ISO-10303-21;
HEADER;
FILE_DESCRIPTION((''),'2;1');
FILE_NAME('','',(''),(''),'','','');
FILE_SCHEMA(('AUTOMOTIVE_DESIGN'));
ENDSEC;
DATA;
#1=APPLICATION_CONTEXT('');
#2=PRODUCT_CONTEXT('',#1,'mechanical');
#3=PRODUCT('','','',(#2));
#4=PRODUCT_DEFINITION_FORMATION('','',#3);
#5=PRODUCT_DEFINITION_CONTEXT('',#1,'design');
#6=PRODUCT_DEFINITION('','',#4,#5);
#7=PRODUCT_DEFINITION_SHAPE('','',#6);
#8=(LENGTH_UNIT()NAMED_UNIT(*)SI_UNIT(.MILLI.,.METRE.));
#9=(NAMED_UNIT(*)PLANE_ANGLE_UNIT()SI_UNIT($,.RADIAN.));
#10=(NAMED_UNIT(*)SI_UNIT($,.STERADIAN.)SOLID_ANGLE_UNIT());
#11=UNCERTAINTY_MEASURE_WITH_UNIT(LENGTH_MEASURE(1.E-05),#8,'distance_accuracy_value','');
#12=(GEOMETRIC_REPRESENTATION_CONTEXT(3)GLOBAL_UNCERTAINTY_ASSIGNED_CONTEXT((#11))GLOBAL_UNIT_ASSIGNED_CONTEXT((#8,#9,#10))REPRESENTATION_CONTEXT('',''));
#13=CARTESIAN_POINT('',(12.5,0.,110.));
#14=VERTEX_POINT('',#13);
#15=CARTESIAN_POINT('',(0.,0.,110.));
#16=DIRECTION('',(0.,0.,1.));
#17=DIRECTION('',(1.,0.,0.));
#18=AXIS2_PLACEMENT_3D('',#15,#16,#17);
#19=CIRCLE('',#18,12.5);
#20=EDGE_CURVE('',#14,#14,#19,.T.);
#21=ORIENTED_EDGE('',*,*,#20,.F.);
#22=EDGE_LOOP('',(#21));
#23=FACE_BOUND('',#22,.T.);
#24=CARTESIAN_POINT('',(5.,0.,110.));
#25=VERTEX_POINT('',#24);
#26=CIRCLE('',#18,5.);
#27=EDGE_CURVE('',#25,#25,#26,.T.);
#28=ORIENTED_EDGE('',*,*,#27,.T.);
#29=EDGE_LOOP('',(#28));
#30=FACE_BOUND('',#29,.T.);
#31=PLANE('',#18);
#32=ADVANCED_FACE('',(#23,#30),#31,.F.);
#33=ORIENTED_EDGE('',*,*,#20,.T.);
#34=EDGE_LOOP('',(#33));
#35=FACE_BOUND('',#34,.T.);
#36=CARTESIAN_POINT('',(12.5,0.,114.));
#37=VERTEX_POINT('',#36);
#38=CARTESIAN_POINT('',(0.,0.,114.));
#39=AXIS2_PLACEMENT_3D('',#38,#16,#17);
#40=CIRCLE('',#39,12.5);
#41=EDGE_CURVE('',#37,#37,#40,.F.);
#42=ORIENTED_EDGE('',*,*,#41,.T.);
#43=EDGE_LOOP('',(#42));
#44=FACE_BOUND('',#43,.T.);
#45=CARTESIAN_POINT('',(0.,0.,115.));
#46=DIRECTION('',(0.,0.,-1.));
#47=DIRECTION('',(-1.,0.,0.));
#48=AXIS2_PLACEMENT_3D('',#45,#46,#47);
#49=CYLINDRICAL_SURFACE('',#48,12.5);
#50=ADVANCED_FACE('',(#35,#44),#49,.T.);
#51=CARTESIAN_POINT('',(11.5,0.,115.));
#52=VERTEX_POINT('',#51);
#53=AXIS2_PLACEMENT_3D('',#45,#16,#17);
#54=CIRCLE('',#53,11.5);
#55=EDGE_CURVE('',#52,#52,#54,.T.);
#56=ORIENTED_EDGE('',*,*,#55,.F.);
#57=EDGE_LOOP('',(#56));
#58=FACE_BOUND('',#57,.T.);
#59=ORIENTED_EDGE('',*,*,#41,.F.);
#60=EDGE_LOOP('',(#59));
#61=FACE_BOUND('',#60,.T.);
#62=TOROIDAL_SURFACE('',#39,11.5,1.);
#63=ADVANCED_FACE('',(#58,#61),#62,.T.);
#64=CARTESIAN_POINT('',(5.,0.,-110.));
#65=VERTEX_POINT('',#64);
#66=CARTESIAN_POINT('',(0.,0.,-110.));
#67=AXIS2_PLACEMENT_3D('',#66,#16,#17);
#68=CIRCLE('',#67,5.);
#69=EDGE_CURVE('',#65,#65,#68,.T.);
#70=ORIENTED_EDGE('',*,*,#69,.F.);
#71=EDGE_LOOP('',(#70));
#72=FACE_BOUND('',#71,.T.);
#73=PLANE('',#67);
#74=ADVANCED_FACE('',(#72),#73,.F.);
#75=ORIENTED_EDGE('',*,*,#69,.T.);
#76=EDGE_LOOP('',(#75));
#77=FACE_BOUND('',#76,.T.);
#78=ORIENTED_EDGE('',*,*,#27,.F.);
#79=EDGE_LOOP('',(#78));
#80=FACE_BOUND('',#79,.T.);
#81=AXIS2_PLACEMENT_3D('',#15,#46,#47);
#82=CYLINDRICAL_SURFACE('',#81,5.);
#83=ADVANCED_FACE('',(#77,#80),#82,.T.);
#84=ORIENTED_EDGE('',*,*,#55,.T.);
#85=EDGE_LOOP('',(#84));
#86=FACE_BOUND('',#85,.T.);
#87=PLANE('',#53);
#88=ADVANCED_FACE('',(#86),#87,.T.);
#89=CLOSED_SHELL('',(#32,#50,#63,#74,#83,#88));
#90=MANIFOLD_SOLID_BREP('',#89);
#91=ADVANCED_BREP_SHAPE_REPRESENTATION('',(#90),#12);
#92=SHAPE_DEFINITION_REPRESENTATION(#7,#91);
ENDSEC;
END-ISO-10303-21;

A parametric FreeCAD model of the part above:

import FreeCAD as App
import Part
import Sketcher
from FreeCAD import Vector


def edges_at(feature, points):
    """Names of the edges that pass closest to the given points."""
    edges = feature.Shape.Edges
    near = lambda p: min(range(len(edges)), key=lambda i: edges[i].distToShape(Part.Vertex(*p))[0])
    return sorted({f"Edge{near(p) + 1}" for p in points})

doc = App.newDocument("Part")
body = doc.addObject("PartDesign::Body", "Body")

sketch1 = doc.addObject("Sketcher::SketchObject", "Sketch")
body.addObject(sketch1)
sketch1.AttachmentSupport = (doc.XY_Plane, [""])
sketch1.MapMode = "FlatFace"
sketch1.addGeometry(Part.Circle(Vector(0, 0, 0), Vector(0, 0, 1), 5), False)
sketch1.addConstraint([
    Sketcher.Constraint("Coincident", 0, 3, -1, 1),
    Sketcher.Constraint("Diameter", 0, 10.0),
])
pad1 = doc.addObject("PartDesign::Pad", "Pad")
body.addObject(pad1)
pad1.Profile = sketch1
pad1.Length = 220
pad1.Midplane = True

sketch2 = doc.addObject("Sketcher::SketchObject", "Sketch001")
body.addObject(sketch2)
sketch2.AttachmentSupport = (doc.XY_Plane, [""])
sketch2.MapMode = "FlatFace"
sketch2.AttachmentOffset = App.Placement(Vector(0, 0, 110), App.Rotation())
sketch2.addGeometry(Part.Circle(Vector(0, 0, 0), Vector(0, 0, 1), 12.5), False)
sketch2.addConstraint([
    Sketcher.Constraint("Coincident", 0, 3, -1, 1),
    Sketcher.Constraint("Diameter", 0, 25.0),
])
pad2 = doc.addObject("PartDesign::Pad", "Pad001")
body.addObject(pad2)
pad2.Profile = sketch2
pad2.Length = 5
doc.recompute()

fillet = doc.addObject("PartDesign::Fillet", "Fillet")
body.addObject(fillet)
fillet.Base = (pad2, edges_at(pad2, [(-12.5, 0, 115)]))
fillet.Radius = 1

doc.recompute()
